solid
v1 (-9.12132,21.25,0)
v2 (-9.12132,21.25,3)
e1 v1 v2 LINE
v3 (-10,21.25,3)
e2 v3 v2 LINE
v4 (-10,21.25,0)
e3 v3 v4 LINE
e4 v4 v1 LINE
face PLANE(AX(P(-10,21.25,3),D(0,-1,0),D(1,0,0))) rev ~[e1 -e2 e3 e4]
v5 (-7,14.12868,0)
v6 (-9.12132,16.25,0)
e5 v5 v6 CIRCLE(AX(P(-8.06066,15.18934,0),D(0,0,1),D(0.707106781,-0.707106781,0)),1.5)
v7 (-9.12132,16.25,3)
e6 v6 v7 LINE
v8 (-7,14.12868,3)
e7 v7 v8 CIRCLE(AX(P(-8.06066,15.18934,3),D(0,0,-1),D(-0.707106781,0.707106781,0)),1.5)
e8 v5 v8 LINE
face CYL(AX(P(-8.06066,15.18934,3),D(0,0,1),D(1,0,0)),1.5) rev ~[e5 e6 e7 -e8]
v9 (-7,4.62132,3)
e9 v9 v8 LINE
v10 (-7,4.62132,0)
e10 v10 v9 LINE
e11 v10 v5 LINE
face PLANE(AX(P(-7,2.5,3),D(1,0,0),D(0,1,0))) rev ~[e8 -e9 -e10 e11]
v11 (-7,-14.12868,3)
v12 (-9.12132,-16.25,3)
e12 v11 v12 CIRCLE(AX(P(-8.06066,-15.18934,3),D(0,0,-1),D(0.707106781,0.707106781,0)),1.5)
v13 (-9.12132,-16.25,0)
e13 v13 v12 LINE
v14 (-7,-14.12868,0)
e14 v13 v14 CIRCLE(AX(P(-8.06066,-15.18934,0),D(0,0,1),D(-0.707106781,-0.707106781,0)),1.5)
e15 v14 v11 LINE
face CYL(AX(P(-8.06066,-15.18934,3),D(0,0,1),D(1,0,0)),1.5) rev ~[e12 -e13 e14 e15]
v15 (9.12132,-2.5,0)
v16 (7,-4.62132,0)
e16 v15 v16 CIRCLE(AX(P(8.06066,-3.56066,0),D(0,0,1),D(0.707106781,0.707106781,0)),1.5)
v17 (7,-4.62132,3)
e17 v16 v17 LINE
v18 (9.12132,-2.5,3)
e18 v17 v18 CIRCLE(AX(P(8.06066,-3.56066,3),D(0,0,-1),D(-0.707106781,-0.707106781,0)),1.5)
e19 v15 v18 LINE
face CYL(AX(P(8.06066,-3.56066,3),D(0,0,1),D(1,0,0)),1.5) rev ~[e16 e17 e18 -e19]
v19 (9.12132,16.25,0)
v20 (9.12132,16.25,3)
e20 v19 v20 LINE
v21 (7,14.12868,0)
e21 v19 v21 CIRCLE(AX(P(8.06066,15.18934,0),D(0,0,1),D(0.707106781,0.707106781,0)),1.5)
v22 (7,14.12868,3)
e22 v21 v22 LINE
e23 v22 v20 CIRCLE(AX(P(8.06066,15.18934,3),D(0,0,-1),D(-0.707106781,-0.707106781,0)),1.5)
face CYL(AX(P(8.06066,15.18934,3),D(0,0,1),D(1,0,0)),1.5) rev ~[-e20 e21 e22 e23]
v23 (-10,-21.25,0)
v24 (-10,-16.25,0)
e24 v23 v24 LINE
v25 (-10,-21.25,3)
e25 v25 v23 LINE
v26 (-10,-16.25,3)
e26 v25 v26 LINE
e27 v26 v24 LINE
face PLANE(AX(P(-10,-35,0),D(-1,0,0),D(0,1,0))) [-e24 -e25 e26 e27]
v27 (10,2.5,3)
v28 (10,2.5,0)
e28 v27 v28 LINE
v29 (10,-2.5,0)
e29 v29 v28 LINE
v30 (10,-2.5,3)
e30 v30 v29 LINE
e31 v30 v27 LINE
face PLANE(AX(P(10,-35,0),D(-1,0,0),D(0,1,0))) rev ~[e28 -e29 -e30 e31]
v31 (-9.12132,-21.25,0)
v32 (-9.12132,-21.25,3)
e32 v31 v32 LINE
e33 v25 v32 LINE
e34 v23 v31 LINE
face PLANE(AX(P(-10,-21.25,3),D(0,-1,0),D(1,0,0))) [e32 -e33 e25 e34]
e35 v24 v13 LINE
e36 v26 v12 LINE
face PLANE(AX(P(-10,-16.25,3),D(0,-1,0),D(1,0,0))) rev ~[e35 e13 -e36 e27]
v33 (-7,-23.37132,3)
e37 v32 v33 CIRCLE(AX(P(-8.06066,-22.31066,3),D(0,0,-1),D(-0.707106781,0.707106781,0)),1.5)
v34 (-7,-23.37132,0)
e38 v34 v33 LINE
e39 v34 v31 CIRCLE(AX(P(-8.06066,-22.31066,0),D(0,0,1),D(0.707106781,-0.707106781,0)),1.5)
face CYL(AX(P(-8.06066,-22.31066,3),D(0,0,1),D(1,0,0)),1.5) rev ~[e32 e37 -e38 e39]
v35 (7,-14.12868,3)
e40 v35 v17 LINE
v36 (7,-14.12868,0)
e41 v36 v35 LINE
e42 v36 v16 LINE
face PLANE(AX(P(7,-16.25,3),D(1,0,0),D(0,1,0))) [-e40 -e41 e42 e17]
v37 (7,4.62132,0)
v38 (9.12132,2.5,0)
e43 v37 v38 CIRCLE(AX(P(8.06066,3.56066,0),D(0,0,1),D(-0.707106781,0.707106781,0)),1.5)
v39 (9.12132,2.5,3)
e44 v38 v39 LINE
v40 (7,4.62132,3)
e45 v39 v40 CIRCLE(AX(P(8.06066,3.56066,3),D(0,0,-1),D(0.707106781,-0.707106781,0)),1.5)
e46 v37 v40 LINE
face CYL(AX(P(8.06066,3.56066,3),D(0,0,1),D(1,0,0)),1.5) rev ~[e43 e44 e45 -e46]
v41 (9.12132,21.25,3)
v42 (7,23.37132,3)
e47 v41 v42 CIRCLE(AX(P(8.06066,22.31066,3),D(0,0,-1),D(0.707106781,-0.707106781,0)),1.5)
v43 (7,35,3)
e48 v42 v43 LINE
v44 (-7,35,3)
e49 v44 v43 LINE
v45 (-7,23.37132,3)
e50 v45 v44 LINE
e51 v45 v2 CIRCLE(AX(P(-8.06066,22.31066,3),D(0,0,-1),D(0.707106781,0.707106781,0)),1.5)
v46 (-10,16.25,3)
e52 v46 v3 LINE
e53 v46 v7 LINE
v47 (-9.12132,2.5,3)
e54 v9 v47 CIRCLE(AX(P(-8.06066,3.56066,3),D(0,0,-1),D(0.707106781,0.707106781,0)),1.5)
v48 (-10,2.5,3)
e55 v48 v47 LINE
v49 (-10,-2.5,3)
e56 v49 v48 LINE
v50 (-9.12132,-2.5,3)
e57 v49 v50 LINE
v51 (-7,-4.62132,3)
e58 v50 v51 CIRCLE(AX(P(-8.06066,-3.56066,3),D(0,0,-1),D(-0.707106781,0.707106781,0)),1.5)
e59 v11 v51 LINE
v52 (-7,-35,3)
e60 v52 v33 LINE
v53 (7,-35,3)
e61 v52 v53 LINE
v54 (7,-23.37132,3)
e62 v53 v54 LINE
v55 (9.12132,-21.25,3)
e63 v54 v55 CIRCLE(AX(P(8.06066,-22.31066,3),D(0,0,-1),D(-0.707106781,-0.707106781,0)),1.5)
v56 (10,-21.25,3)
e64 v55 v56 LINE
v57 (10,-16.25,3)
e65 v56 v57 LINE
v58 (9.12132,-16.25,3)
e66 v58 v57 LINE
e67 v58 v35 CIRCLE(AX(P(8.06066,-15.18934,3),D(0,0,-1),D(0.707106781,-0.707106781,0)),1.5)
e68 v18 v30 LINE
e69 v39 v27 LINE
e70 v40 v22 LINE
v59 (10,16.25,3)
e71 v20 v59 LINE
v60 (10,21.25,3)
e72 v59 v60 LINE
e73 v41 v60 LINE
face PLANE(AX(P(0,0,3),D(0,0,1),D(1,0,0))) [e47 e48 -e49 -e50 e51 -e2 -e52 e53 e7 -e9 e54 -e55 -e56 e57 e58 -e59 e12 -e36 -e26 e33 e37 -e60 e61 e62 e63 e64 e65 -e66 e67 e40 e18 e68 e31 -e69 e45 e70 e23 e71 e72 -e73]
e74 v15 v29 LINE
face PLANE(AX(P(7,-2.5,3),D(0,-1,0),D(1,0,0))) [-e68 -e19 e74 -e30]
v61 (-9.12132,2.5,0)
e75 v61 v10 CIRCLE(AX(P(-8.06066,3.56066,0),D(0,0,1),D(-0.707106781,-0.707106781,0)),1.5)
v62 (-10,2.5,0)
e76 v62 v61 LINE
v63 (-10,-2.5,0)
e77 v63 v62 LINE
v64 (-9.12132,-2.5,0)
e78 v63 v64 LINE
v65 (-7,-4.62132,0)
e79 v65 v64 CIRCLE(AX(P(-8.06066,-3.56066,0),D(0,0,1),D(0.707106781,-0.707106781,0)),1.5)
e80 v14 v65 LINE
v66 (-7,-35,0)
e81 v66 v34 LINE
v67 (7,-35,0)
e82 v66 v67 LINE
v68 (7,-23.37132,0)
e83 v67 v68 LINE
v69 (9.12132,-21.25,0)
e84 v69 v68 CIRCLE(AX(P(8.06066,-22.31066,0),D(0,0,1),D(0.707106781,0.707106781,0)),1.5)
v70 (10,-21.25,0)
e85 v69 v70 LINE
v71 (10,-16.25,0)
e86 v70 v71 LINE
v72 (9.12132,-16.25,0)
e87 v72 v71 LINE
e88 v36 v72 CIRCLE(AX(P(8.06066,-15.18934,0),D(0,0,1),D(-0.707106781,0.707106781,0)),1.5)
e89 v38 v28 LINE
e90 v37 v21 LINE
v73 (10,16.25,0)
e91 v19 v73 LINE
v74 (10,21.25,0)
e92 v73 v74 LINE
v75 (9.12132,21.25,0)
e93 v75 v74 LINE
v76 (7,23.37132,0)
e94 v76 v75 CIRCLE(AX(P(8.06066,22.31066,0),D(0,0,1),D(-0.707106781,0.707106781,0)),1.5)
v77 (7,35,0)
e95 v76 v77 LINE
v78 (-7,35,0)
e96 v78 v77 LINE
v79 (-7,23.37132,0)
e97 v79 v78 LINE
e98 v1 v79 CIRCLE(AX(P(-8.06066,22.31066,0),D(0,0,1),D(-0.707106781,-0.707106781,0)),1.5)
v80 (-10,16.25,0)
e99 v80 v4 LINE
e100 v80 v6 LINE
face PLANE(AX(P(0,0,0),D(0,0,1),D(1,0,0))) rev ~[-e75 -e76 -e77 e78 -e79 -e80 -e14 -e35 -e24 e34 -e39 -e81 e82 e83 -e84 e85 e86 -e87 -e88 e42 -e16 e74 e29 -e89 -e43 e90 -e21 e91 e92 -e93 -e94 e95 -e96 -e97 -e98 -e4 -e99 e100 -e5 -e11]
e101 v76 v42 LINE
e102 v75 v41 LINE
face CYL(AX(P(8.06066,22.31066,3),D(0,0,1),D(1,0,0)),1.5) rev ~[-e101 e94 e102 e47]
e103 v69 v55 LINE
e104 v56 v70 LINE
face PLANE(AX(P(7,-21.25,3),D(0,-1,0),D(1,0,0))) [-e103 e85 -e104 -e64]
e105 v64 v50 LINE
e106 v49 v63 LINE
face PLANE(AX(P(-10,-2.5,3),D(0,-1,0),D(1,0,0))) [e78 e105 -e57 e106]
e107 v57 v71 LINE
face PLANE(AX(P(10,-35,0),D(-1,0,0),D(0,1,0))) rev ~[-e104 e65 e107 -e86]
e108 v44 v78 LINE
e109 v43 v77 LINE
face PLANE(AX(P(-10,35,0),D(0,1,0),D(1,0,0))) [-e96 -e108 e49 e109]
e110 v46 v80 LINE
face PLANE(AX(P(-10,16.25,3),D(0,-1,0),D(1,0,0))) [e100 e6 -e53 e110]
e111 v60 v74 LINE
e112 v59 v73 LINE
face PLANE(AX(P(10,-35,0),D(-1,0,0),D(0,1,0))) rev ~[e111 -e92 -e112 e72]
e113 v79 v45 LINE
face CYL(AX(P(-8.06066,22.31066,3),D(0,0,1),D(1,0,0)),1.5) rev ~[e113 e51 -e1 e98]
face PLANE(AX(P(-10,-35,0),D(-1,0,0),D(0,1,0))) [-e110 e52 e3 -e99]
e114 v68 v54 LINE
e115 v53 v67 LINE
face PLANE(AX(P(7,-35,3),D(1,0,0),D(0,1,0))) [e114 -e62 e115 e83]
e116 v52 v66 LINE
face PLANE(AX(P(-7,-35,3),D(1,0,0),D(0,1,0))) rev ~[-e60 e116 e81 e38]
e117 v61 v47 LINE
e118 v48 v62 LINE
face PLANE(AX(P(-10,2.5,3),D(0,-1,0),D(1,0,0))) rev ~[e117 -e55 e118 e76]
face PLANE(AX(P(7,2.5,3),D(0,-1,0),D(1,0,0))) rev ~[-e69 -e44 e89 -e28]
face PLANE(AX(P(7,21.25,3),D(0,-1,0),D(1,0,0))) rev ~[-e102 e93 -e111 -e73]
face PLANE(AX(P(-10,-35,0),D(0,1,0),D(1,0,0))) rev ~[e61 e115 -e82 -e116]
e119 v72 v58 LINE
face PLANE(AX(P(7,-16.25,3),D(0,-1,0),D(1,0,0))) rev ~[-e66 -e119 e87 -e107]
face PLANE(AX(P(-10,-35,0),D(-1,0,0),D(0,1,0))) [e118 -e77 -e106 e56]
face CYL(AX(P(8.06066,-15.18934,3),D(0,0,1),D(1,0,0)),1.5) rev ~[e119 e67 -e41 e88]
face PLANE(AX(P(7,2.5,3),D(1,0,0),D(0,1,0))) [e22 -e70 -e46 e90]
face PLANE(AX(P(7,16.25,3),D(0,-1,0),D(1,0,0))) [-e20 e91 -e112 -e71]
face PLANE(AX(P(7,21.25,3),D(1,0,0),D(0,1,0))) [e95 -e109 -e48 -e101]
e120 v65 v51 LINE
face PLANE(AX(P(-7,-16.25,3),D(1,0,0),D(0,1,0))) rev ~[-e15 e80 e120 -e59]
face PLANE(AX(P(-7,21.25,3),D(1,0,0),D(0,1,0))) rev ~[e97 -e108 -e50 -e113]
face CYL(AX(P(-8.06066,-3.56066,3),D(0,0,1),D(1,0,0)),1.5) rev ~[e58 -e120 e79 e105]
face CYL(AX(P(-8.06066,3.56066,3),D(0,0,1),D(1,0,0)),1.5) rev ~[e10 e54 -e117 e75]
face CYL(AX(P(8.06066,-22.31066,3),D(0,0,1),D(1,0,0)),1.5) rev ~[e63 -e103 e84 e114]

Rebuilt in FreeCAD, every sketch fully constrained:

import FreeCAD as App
import Part
import Sketcher
from FreeCAD import Vector
Q = App.Units.Quantity

doc = App.newDocument("Part")
body = doc.addObject("PartDesign::Body", "Body")

# Sketch on XY plane
sketch1 = body.newObject("Sketcher::SketchObject", "Sketch")
sketch1.AttachmentSupport = (doc.getObject("XY_Plane"), [""])
sketch1.MapMode = "FlatFace"
sketch1.addGeometry(Part.LineSegment(Vector(-10, 35, 0), Vector(-10, -35, 0)), False)
sketch1.addGeometry(Part.LineSegment(Vector(-10, -35, 0), Vector(10, -35, 0)), False)
sketch1.addGeometry(Part.LineSegment(Vector(10, -35, 0), Vector(10, 35, 0)), False)
sketch1.addGeometry(Part.LineSegment(Vector(10, 35, 0), Vector(-10, 35, 0)), False)
sketch1.addConstraint(Sketcher.Constraint("Coincident", 0, 2, 1, 1))
sketch1.addConstraint(Sketcher.Constraint("Coincident", 1, 2, 2, 1))
sketch1.addConstraint(Sketcher.Constraint("Coincident", 2, 2, 3, 1))
sketch1.addConstraint(Sketcher.Constraint("Coincident", 3, 2, 0, 1))
sketch1.addConstraint(Sketcher.Constraint("Vertical", 0))
sketch1.addConstraint(Sketcher.Constraint("Horizontal", 1))
sketch1.addConstraint(Sketcher.Constraint("Vertical", 2))
sketch1.addConstraint(Sketcher.Constraint("Horizontal", 3))
sketch1.addConstraint(Sketcher.Constraint("Symmetric", 0, 2, 2, 2, -1, 1))
sketch1.addConstraint(Sketcher.Constraint("DistanceX", 1, 1, 1, 2, Q("20 mm")))
sketch1.addConstraint(Sketcher.Constraint("DistanceY", 0, 2, 0, 1, Q("70 mm")))
pad1 = body.newObject("PartDesign::Pad", "Pad")
pad1.Profile = sketch1
pad1.Length = 3

# Sketch on XY plane
sketch2 = body.newObject("Sketcher::SketchObject", "Sketch001")
sketch2.AttachmentSupport = (doc.getObject("XY_Plane"), [""])
sketch2.MapMode = "FlatFace"
sketch2.AttachmentOffset = App.Placement(Vector(0, 0, 3), App.Rotation())
sketch2.addGeometry(Part.LineSegment(Vector(7, 35, 0), Vector(7, 21.2, 0)), False)
sketch2.addGeometry(Part.LineSegment(Vector(7, 21.2, 0), Vector(10, 21.2, 0)), False)
sketch2.addGeometry(Part.LineSegment(Vector(10, 21.2, 0), Vector(10, 35, 0)), False)
sketch2.addGeometry(Part.LineSegment(Vector(10, 35, 0), Vector(7, 35, 0)), False)
sketch2.addGeometry(Part.LineSegment(Vector(7, 16.2, 0), Vector(7, 2.5, 0)), False)
sketch2.addGeometry(Part.LineSegment(Vector(7, 2.5, 0), Vector(10, 2.5, 0)), False)
sketch2.addGeometry(Part.LineSegment(Vector(10, 2.5, 0), Vector(10, 16.2, 0)), False)
sketch2.addGeometry(Part.LineSegment(Vector(10, 16.2, 0), Vector(7, 16.2, 0)), False)
sketch2.addGeometry(Part.LineSegment(Vector(7, -21.2, 0), Vector(7, -35, 0)), False)
sketch2.addGeometry(Part.LineSegment(Vector(7, -35, 0), Vector(10, -35, 0)), False)
sketch2.addGeometry(Part.LineSegment(Vector(10, -35, 0), Vector(10, -21.2, 0)), False)
sketch2.addGeometry(Part.LineSegment(Vector(10, -21.2, 0), Vector(7, -21.2, 0)), False)
sketch2.addGeometry(Part.LineSegment(Vector(7, -2.5, 0), Vector(7, -16.2, 0)), False)
sketch2.addGeometry(Part.LineSegment(Vector(7, -16.2, 0), Vector(10, -16.2, 0)), False)
sketch2.addGeometry(Part.LineSegment(Vector(10, -16.2, 0), Vector(10, -2.5, 0)), False)
sketch2.addGeometry(Part.LineSegment(Vector(10, -2.5, 0), Vector(7, -2.5, 0)), False)
sketch2.addGeometry(Part.LineSegment(Vector(-10, -2.5, 0), Vector(-10, -16.2, 0)), False)
sketch2.addGeometry(Part.LineSegment(Vector(-10, -16.2, 0), Vector(-7, -16.2, 0)), False)
sketch2.addGeometry(Part.LineSegment(Vector(-7, -16.2, 0), Vector(-7, -2.5, 0)), False)
sketch2.addGeometry(Part.LineSegment(Vector(-7, -2.5, 0), Vector(-10, -2.5, 0)), False)
sketch2.addGeometry(Part.LineSegment(Vector(-10, -21.2, 0), Vector(-10, -35, 0)), False)
sketch2.addGeometry(Part.LineSegment(Vector(-10, -35, 0), Vector(-7, -35, 0)), False)
sketch2.addGeometry(Part.LineSegment(Vector(-7, -35, 0), Vector(-7, -21.2, 0)), False)
sketch2.addGeometry(Part.LineSegment(Vector(-7, -21.2, 0), Vector(-10, -21.2, 0)), False)
sketch2.addGeometry(Part.LineSegment(Vector(-10, 16.2, 0), Vector(-10, 2.5, 0)), False)
sketch2.addGeometry(Part.LineSegment(Vector(-10, 2.5, 0), Vector(-7, 2.5, 0)), False)
sketch2.addGeometry(Part.LineSegment(Vector(-7, 2.5, 0), Vector(-7, 16.2, 0)), False)
sketch2.addGeometry(Part.LineSegment(Vector(-7, 16.2, 0), Vector(-10, 16.2, 0)), False)
sketch2.addGeometry(Part.LineSegment(Vector(-10, 35, 0), Vector(-10, 21.2, 0)), False)
sketch2.addGeometry(Part.LineSegment(Vector(-10, 21.2, 0), Vector(-7, 21.2, 0)), False)
sketch2.addGeometry(Part.LineSegment(Vector(-7, 21.2, 0), Vector(-7, 35, 0)), False)
sketch2.addGeometry(Part.LineSegment(Vector(-7, 35, 0), Vector(-10, 35, 0)), False)
sketch2.addConstraint(Sketcher.Constraint("Coincident", 0, 2, 1, 1))
sketch2.addConstraint(Sketcher.Constraint("Coincident", 1, 2, 2, 1))
sketch2.addConstraint(Sketcher.Constraint("Coincident", 2, 2, 3, 1))
sketch2.addConstraint(Sketcher.Constraint("Coincident", 3, 2, 0, 1))
sketch2.addConstraint(Sketcher.Constraint("Coincident", 4, 2, 5, 1))
sketch2.addConstraint(Sketcher.Constraint("Coincident", 5, 2, 6, 1))
sketch2.addConstraint(Sketcher.Constraint("Coincident", 6, 2, 7, 1))
sketch2.addConstraint(Sketcher.Constraint("Coincident", 7, 2, 4, 1))
sketch2.addConstraint(Sketcher.Constraint("Coincident", 8, 2, 9, 1))
sketch2.addConstraint(Sketcher.Constraint("Coincident", 9, 2, 10, 1))
sketch2.addConstraint(Sketcher.Constraint("Coincident", 10, 2, 11, 1))
sketch2.addConstraint(Sketcher.Constraint("Coincident", 11, 2, 8, 1))
sketch2.addConstraint(Sketcher.Constraint("Coincident", 12, 2, 13, 1))
sketch2.addConstraint(Sketcher.Constraint("Coincident", 13, 2, 14, 1))
sketch2.addConstraint(Sketcher.Constraint("Coincident", 14, 2, 15, 1))
sketch2.addConstraint(Sketcher.Constraint("Coincident", 15, 2, 12, 1))
sketch2.addConstraint(Sketcher.Constraint("Coincident", 16, 2, 17, 1))
sketch2.addConstraint(Sketcher.Constraint("Coincident", 17, 2, 18, 1))
sketch2.addConstraint(Sketcher.Constraint("Coincident", 18, 2, 19, 1))
sketch2.addConstraint(Sketcher.Constraint("Coincident", 19, 2, 16, 1))
sketch2.addConstraint(Sketcher.Constraint("Coincident", 20, 2, 21, 1))
sketch2.addConstraint(Sketcher.Constraint("Coincident", 21, 2, 22, 1))
sketch2.addConstraint(Sketcher.Constraint("Coincident", 22, 2, 23, 1))
sketch2.addConstraint(Sketcher.Constraint("Coincident", 23, 2, 20, 1))
sketch2.addConstraint(Sketcher.Constraint("Coincident", 24, 2, 25, 1))
sketch2.addConstraint(Sketcher.Constraint("Coincident", 25, 2, 26, 1))
sketch2.addConstraint(Sketcher.Constraint("Coincident", 26, 2, 27, 1))
sketch2.addConstraint(Sketcher.Constraint("Coincident", 27, 2, 24, 1))
sketch2.addConstraint(Sketcher.Constraint("Coincident", 28, 2, 29, 1))
sketch2.addConstraint(Sketcher.Constraint("Coincident", 29, 2, 30, 1))
sketch2.addConstraint(Sketcher.Constraint("Coincident", 30, 2, 31, 1))
sketch2.addConstraint(Sketcher.Constraint("Coincident", 31, 2, 28, 1))
sketch2.addConstraint(Sketcher.Constraint("Vertical", 0))
sketch2.addConstraint(Sketcher.Constraint("Horizontal", 1))
sketch2.addConstraint(Sketcher.Constraint("Vertical", 2))
sketch2.addConstraint(Sketcher.Constraint("Horizontal", 3))
sketch2.addConstraint(Sketcher.Constraint("Vertical", 4))
sketch2.addConstraint(Sketcher.Constraint("Horizontal", 5))
sketch2.addConstraint(Sketcher.Constraint("Vertical", 6))
sketch2.addConstraint(Sketcher.Constraint("Horizontal", 7))
sketch2.addConstraint(Sketcher.Constraint("Vertical", 8))
sketch2.addConstraint(Sketcher.Constraint("Horizontal", 9))
sketch2.addConstraint(Sketcher.Constraint("Vertical", 10))
sketch2.addConstraint(Sketcher.Constraint("Horizontal", 11))
sketch2.addConstraint(Sketcher.Constraint("Vertical", 12))
sketch2.addConstraint(Sketcher.Constraint("Horizontal", 13))
sketch2.addConstraint(Sketcher.Constraint("Vertical", 14))
sketch2.addConstraint(Sketcher.Constraint("Horizontal", 15))
sketch2.addConstraint(Sketcher.Constraint("Vertical", 16))
sketch2.addConstraint(Sketcher.Constraint("Horizontal", 17))
sketch2.addConstraint(Sketcher.Constraint("Vertical", 18))
sketch2.addConstraint(Sketcher.Constraint("Horizontal", 19))
sketch2.addConstraint(Sketcher.Constraint("Vertical", 20))
sketch2.addConstraint(Sketcher.Constraint("Horizontal", 21))
sketch2.addConstraint(Sketcher.Constraint("Vertical", 22))
sketch2.addConstraint(Sketcher.Constraint("Horizontal", 23))
sketch2.addConstraint(Sketcher.Constraint("Vertical", 24))
sketch2.addConstraint(Sketcher.Constraint("Horizontal", 25))
sketch2.addConstraint(Sketcher.Constraint("Vertical", 26))
sketch2.addConstraint(Sketcher.Constraint("Horizontal", 27))
sketch2.addConstraint(Sketcher.Constraint("Vertical", 28))
sketch2.addConstraint(Sketcher.Constraint("Horizontal", 29))
sketch2.addConstraint(Sketcher.Constraint("Vertical", 30))
sketch2.addConstraint(Sketcher.Constraint("Horizontal", 31))
sketch2.addConstraint(Sketcher.Constraint("Symmetric", 6, 2, 16, 2, -1, 1))
sketch2.addConstraint(Sketcher.Constraint("Symmetric", 4, 2, 18, 2, -1, 1))
sketch2.addConstraint(Sketcher.Constraint("Symmetric", 2, 2, 20, 2, -1, 1))
sketch2.addConstraint(Sketcher.Constraint("Symmetric", 0, 2, 22, 2, -1, 1))
sketch2.addConstraint(Sketcher.Constraint("Symmetric", 14, 2, 24, 2, -1, 1))
sketch2.addConstraint(Sketcher.Constraint("Symmetric", 12, 2, 26, 2, -1, 1))
sketch2.addConstraint(Sketcher.Constraint("Symmetric", 10, 2, 28, 2, -1, 1))
sketch2.addConstraint(Sketcher.Constraint("Symmetric", 8, 2, 30, 2, -1, 1))
sketch2.addConstraint(Sketcher.Constraint("Symmetric", 13, 2, 16, 2, -2))
sketch2.addConstraint(Sketcher.Constraint("Symmetric", 15, 2, 18, 2, -2))
sketch2.addConstraint(Sketcher.Constraint("Symmetric", 9, 2, 20, 2, -2))
sketch2.addConstraint(Sketcher.Constraint("Symmetric", 11, 2, 22, 2, -2))
sketch2.addConstraint(Sketcher.Constraint("Vertical", 3, 2, 4, 2))
sketch2.addConstraint(Sketcher.Constraint("Vertical", 2, 2, 5, 2))
sketch2.addConstraint(Sketcher.Constraint("Equal", 2, 4))
sketch2.addConstraint(Sketcher.Constraint("DistanceX", 1, 1, 1, 2, Q("3 mm")))
sketch2.addConstraint(Sketcher.Constraint("DistanceX", -1, 1, 0, 2, Q("7 mm")))
sketch2.addConstraint(Sketcher.Constraint("DistanceY", -1, 1, 2, 2, Q("35 mm")))
sketch2.addConstraint(Sketcher.Constraint("DistanceY", 6, 2, 1, 2, Q("5 mm")))
sketch2.addConstraint(Sketcher.Constraint("DistanceY", 14, 2, 5, 2, Q("5 mm")))
pocket1 = body.newObject("PartDesign::Pocket", "Pocket")
pocket1.Profile = sketch2
pocket1.Type = "ThroughAll"

# Sketch on XY plane
sketch3 = body.newObject("Sketcher::SketchObject", "Sketch002")
sketch3.AttachmentSupport = (doc.getObject("XY_Plane"), [""])
sketch3.MapMode = "FlatFace"
sketch3.AttachmentOffset = App.Placement(Vector(0, 0, 3), App.Rotation())
sketch3.addGeometry(Part.Circle(Vector(8.1, 22.3, 0), Vector(0, 0, 1), 1.5), False)
sketch3.addGeometry(Part.Circle(Vector(8.1, 15.2, 0), Vector(0, 0, 1), 1.5), False)
sketch3.addGeometry(Part.Circle(Vector(8.1, 3.6, 0), Vector(0, 0, 1), 1.5), False)
sketch3.addGeometry(Part.Circle(Vector(8.1, -3.6, 0), Vector(0, 0, 1), 1.5), False)
sketch3.addGeometry(Part.Circle(Vector(8.1, -15.2, 0), Vector(0, 0, 1), 1.5), False)
sketch3.addGeometry(Part.Circle(Vector(8.1, -22.3, 0), Vector(0, 0, 1), 1.5), False)
sketch3.addGeometry(Part.Circle(Vector(-8.1, -22.3, 0), Vector(0, 0, 1), 1.5), False)
sketch3.addGeometry(Part.Circle(Vector(-8.1, -15.2, 0), Vector(0, 0, 1), 1.5), False)
sketch3.addGeometry(Part.Circle(Vector(-8.1, -3.6, 0), Vector(0, 0, 1), 1.5), False)
sketch3.addGeometry(Part.Circle(Vector(-8.1, 3.6, 0), Vector(0, 0, 1), 1.5), False)
sketch3.addGeometry(Part.Circle(Vector(-8.1, 15.2, 0), Vector(0, 0, 1), 1.5), False)
sketch3.addGeometry(Part.Circle(Vector(-8.1, 22.3, 0), Vector(0, 0, 1), 1.5), False)
sketch3.addConstraint(Sketcher.Constraint("Equal", 0, 1))
sketch3.addConstraint(Sketcher.Constraint("Equal", 1, 2))
sketch3.addConstraint(Sketcher.Constraint("Equal", 2, 3))
sketch3.addConstraint(Sketcher.Constraint("Equal", 3, 4))
sketch3.addConstraint(Sketcher.Constraint("Equal", 4, 5))
sketch3.addConstraint(Sketcher.Constraint("Equal", 5, 6))
sketch3.addConstraint(Sketcher.Constraint("Equal", 6, 7))
sketch3.addConstraint(Sketcher.Constraint("Equal", 7, 8))
sketch3.addConstraint(Sketcher.Constraint("Equal", 8, 9))
sketch3.addConstraint(Sketcher.Constraint("Equal", 9, 10))
sketch3.addConstraint(Sketcher.Constraint("Equal", 10, 11))
sketch3.addConstraint(Sketcher.Constraint("Symmetric", 0, 3, 6, 3, -1, 1))
sketch3.addConstraint(Sketcher.Constraint("Symmetric", 1, 3, 7, 3, -1, 1))
sketch3.addConstraint(Sketcher.Constraint("Symmetric", 2, 3, 8, 3, -1, 1))
sketch3.addConstraint(Sketcher.Constraint("Symmetric", 3, 3, 9, 3, -1, 1))
sketch3.addConstraint(Sketcher.Constraint("Symmetric", 4, 3, 10, 3, -1, 1))
sketch3.addConstraint(Sketcher.Constraint("Symmetric", 5, 3, 11, 3, -1, 1))
sketch3.addConstraint(Sketcher.Constraint("Symmetric", 5, 3, 6, 3, -2))
sketch3.addConstraint(Sketcher.Constraint("Symmetric", 4, 3, 7, 3, -2))
sketch3.addConstraint(Sketcher.Constraint("Symmetric", 3, 3, 8, 3, -2))
sketch3.addConstraint(Sketcher.Constraint("Vertical", 0, 3, 1, 3))
sketch3.addConstraint(Sketcher.Constraint("Vertical", 1, 3, 2, 3))
sketch3.addConstraint(Sketcher.Constraint("Diameter", 0, Q("3 mm")))
sketch3.addConstraint(Sketcher.Constraint("DistanceY", 4, 3, 0, 3, Q("37.5 mm")))
sketch3.addConstraint(Sketcher.Constraint("DistanceY", 2, 3, 0, 3, Q("18.75 mm")))
sketch3.addConstraint(Sketcher.Constraint("DistanceX", -1, 1, 0, 3, Q("8.06066 mm")))
sketch3.addConstraint(Sketcher.Constraint("DistanceY", -1, 1, 0, 3, Q("22.31066 mm")))
pocket2 = body.newObject("PartDesign::Pocket", "Pocket001")
pocket2.Profile = sketch3
pocket2.Type = "ThroughAll"

doc.recompute()
